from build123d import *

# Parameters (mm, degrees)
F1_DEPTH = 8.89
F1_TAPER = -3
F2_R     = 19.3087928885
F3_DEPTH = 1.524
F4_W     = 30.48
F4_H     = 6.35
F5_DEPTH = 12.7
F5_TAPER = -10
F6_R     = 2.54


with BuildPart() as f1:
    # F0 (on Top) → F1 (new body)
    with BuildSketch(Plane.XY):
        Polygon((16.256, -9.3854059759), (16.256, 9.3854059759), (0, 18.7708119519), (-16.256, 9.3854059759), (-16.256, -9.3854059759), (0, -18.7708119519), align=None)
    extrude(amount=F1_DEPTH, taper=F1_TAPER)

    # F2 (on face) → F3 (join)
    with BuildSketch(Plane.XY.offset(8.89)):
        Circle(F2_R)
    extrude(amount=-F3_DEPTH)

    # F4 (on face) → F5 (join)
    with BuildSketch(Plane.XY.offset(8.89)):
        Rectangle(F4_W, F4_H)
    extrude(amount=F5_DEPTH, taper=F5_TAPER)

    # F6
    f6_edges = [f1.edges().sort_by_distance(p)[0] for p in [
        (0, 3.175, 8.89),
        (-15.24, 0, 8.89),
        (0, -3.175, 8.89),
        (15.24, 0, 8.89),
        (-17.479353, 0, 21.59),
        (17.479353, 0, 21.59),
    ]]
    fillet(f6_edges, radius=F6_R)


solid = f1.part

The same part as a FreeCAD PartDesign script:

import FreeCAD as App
import Part
import Sketcher

V = App.Vector
Q = App.Units.Quantity


def edges_at(feature, points):
    """Names of the edges that pass closest to the given points."""
    edges = feature.Shape.Edges
    near = lambda p: min(range(len(edges)), key=lambda i: edges[i].distToShape(Part.Vertex(*p))[0])
    return sorted({f"Edge{near(p) + 1}" for p in points})


def add_polygon(sketch, points):
    """Adds a closed chain of lines whose ends are joined by coincident constraints."""
    first, n = sketch.GeometryCount, len(points)
    for a, b in zip(points, points[1:] + points[:1]):
        sketch.addGeometry(Part.LineSegment(App.Vector(*a, 0), App.Vector(*b, 0)), False)
    for i in range(n):
        sketch.addConstraint(Sketcher.Constraint("Coincident", first + i, 2, first + (i + 1) % n, 1))

doc = App.newDocument("Part")
params = doc.addObject("Spreadsheet::Sheet", "Params")
for row, (alias, value) in enumerate([
    ("pad1_length", "0.35 in"),
    ("pad1_taper", "3 deg"),
    ("pad2_length", "0.06 in"),
    ("sketch3_width", "1.2 in"),
    ("sketch3_height", "0.25 in"),
    ("pad3_length", "0.5 in"),
    ("pad3_taper", "10 deg"),
    ("fillet_radius", "0.1 in"),
], start=1):
    params.set(f"A{row}", alias)
    params.set(f"B{row}", "=" + value)
    params.setAlias(f"B{row}", alias)

body = doc.addObject("PartDesign::Body", "Body")

# Sketch on XY plane
sketch1 = body.newObject("Sketcher::SketchObject", "Sketch")
sketch1.AttachmentSupport = (doc.getObject("XY_Plane"), [""])
sketch1.MapMode = "FlatFace"
add_polygon(sketch1, [(16, -9), (16, 9), (0, 19), (-16, 9), (-16, -9), (0, -19)])  # lines 0-5
sketch1.addConstraint(Sketcher.Constraint("Vertical", 0))
sketch1.addConstraint(Sketcher.Constraint("Vertical", 3))
sketch1.addConstraint(Sketcher.Constraint("Symmetric", 0, 2, 3, 2, -1, 1))
sketch1.addConstraint(Sketcher.Constraint("Symmetric", 1, 2, 4, 2, -1, 1))
sketch1.addConstraint(Sketcher.Constraint("PointOnObject", 1, 2, -2))
sketch1.addConstraint(Sketcher.Constraint("Parallel", 2, 5))
sketch1.addConstraint(Sketcher.Constraint("Horizontal", 0, 2, 2, 2))
sketch1.addConstraint(Sketcher.Constraint("Angle", 1, Q("150 deg")))
sketch1.addConstraint(Sketcher.Constraint("DistanceX", -1, 1, 0, 2, Q("0.64 in")))
sketch1.addConstraint(Sketcher.Constraint("DistanceY", 0, 1, 0, 2, Q("18.770812 mm")))
pad1 = body.newObject("PartDesign::Pad", "Pad")
pad1.Profile = sketch1
pad1.setExpression("Length", "Params.pad1_length")
pad1.setExpression("TaperAngle", "Params.pad1_taper")

# Sketch on XY plane
sketch2 = body.newObject("Sketcher::SketchObject", "Sketch001")
sketch2.AttachmentSupport = (doc.getObject("XY_Plane"), [""])
sketch2.MapMode = "FlatFace"
sketch2.AttachmentOffset = App.Placement(V(0, 0, 0.35 * 25.4), App.Rotation())
sketch2.addGeometry(Part.Circle(V(0, 0, 0), V(0, 0, 1), 19), False)
sketch2.addConstraint(Sketcher.Constraint("Coincident", 0, 3, -1, 1))
sketch2.addConstraint(Sketcher.Constraint("Diameter", 0, Q("38.617586 mm")))
pad2 = body.newObject("PartDesign::Pad", "Pad001")
pad2.Profile = sketch2
pad2.setExpression("Length", "Params.pad2_length")
pad2.Reversed = True

# Sketch on XY plane
sketch3 = body.newObject("Sketcher::SketchObject", "Sketch002")
sketch3.AttachmentSupport = (doc.getObject("XY_Plane"), [""])
sketch3.MapMode = "FlatFace"
sketch3.AttachmentOffset = App.Placement(V(0, 0, 0.35 * 25.4), App.Rotation())
add_polygon(sketch3, [(-15, 3), (-15, -3), (15, -3), (15, 3)])  # lines 0-3
sketch3.addConstraint(Sketcher.Constraint("Vertical", 0))
sketch3.addConstraint(Sketcher.Constraint("Horizontal", 1))
sketch3.addConstraint(Sketcher.Constraint("Vertical", 2))
sketch3.addConstraint(Sketcher.Constraint("Horizontal", 3))
sketch3.addConstraint(Sketcher.Constraint("Symmetric", 0, 2, 2, 2, -1, 1))
sketch3.addConstraint(Sketcher.Constraint("DistanceX", 1, 1, 1, 2, Q("1.2 in")))
sketch3.addConstraint(Sketcher.Constraint("DistanceY", 0, 2, 0, 1, Q("0.25 in")))
sketch3.setExpression("Constraints[9]", "Params.sketch3_width")
sketch3.setExpression("Constraints[10]", "Params.sketch3_height")
pad3 = body.newObject("PartDesign::Pad", "Pad002")
pad3.Profile = sketch3
pad3.setExpression("Length", "Params.pad3_length")
pad3.setExpression("TaperAngle", "Params.pad3_taper")
doc.recompute()

fillet = body.newObject("PartDesign::Fillet", "Fillet")
fillet.Base = (pad3, edges_at(pad3, [
    (0, 3.175, 8.89),
    (-15.24, 0, 8.89),
    (0, -3.175, 8.89),
    (15.24, 0, 8.89),
    (-17.479, 0, 21.59),
    (17.479, 0, 21.59),
]))
fillet.setExpression("Radius", "Params.fillet_radius")

doc.recompute()
